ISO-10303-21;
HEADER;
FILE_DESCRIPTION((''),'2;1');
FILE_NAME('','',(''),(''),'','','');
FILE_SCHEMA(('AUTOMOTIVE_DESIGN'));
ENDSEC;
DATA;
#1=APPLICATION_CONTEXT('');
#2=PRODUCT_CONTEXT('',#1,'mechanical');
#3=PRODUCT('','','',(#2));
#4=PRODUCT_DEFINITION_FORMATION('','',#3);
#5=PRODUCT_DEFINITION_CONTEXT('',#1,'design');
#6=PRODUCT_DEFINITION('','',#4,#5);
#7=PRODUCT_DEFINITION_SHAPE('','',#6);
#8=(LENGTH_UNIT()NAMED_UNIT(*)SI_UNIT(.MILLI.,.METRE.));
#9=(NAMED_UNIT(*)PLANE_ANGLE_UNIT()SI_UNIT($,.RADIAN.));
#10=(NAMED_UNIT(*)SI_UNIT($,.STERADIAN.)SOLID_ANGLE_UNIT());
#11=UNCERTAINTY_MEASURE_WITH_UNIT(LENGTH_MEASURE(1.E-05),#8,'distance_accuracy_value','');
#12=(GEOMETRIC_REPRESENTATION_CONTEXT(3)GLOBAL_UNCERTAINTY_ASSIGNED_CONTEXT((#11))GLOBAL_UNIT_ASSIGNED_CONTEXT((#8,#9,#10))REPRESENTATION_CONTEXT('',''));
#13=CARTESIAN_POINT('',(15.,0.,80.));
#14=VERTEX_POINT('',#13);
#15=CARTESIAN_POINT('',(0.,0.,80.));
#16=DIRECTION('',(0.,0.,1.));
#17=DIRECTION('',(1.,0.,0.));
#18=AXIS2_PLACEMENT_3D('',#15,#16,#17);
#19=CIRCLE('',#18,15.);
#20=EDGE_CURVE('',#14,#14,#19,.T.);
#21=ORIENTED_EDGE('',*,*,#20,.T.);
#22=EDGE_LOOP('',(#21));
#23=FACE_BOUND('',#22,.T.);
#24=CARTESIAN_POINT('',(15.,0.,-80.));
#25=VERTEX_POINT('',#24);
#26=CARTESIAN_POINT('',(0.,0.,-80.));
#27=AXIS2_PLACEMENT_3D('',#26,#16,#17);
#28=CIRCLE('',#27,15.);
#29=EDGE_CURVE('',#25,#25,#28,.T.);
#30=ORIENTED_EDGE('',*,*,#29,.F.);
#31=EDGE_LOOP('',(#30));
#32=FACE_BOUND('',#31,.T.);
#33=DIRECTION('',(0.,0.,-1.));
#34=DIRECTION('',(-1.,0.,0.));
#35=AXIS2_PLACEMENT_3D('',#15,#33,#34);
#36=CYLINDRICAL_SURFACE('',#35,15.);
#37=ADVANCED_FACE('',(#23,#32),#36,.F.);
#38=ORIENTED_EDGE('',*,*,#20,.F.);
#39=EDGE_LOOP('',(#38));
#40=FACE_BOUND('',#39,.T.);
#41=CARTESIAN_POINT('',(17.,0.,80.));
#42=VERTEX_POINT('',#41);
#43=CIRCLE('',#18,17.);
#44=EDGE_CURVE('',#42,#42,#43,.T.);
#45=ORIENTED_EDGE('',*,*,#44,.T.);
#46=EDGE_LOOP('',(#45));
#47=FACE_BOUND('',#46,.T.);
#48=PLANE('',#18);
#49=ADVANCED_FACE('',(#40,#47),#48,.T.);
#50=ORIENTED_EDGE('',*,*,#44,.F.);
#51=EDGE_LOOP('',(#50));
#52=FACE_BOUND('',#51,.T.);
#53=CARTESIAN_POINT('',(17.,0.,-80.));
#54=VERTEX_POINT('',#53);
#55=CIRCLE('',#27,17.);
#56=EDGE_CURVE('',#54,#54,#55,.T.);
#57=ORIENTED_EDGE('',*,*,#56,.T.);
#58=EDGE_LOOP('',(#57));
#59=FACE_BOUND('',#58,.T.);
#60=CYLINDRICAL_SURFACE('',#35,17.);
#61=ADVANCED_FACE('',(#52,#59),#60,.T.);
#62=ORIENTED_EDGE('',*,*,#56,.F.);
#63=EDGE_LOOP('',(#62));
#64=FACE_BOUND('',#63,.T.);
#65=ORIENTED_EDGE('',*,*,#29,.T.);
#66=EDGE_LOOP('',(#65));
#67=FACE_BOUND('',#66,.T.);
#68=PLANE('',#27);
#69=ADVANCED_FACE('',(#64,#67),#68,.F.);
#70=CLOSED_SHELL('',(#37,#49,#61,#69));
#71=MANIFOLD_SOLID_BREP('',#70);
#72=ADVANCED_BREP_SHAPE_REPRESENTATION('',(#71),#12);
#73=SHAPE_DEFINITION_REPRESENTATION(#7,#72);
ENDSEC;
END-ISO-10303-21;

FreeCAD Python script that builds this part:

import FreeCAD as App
import Part
import Sketcher

V = App.Vector
Q = App.Units.Quantity

doc = App.newDocument("Part")
params = doc.addObject("Spreadsheet::Sheet", "Params")
for row, (alias, value) in enumerate([
    ("sketch1_diameter", "34 mm"),
    ("sketch1_diameter2", "30 mm"),
    ("pad1_length", "160 mm"),
], start=1):
    params.set(f"A{row}", alias)
    params.set(f"B{row}", "=" + value)
    params.setAlias(f"B{row}", alias)

body = doc.addObject("PartDesign::Body", "Body")

# Sketch on XY plane
sketch1 = body.newObject("Sketcher::SketchObject", "Sketch")
sketch1.AttachmentSupport = (doc.getObject("XY_Plane"), [""])
sketch1.MapMode = "FlatFace"
sketch1.addGeometry([
    Part.Circle(V(0, 0, 0), V(0, 0, 1), 17),
    Part.Circle(V(0, 0, 0), V(0, 0, 1), 15),
], False)
sketch1.addConstraint([
    Sketcher.Constraint("Coincident", 0, 3, -1, 1),
    Sketcher.Constraint("Coincident", 1, 3, -1, 1),
    Sketcher.Constraint("Diameter", 0, Q("34 mm")),
    Sketcher.Constraint("Diameter", 1, Q("30 mm")),
])
sketch1.setExpression("Constraints[2]", "Params.sketch1_diameter")
sketch1.setExpression("Constraints[3]", "Params.sketch1_diameter2")
pad1 = body.newObject("PartDesign::Pad", "Pad")
pad1.Profile = sketch1
pad1.setExpression("Length", "Params.pad1_length")
pad1.Midplane = True

doc.recompute()
